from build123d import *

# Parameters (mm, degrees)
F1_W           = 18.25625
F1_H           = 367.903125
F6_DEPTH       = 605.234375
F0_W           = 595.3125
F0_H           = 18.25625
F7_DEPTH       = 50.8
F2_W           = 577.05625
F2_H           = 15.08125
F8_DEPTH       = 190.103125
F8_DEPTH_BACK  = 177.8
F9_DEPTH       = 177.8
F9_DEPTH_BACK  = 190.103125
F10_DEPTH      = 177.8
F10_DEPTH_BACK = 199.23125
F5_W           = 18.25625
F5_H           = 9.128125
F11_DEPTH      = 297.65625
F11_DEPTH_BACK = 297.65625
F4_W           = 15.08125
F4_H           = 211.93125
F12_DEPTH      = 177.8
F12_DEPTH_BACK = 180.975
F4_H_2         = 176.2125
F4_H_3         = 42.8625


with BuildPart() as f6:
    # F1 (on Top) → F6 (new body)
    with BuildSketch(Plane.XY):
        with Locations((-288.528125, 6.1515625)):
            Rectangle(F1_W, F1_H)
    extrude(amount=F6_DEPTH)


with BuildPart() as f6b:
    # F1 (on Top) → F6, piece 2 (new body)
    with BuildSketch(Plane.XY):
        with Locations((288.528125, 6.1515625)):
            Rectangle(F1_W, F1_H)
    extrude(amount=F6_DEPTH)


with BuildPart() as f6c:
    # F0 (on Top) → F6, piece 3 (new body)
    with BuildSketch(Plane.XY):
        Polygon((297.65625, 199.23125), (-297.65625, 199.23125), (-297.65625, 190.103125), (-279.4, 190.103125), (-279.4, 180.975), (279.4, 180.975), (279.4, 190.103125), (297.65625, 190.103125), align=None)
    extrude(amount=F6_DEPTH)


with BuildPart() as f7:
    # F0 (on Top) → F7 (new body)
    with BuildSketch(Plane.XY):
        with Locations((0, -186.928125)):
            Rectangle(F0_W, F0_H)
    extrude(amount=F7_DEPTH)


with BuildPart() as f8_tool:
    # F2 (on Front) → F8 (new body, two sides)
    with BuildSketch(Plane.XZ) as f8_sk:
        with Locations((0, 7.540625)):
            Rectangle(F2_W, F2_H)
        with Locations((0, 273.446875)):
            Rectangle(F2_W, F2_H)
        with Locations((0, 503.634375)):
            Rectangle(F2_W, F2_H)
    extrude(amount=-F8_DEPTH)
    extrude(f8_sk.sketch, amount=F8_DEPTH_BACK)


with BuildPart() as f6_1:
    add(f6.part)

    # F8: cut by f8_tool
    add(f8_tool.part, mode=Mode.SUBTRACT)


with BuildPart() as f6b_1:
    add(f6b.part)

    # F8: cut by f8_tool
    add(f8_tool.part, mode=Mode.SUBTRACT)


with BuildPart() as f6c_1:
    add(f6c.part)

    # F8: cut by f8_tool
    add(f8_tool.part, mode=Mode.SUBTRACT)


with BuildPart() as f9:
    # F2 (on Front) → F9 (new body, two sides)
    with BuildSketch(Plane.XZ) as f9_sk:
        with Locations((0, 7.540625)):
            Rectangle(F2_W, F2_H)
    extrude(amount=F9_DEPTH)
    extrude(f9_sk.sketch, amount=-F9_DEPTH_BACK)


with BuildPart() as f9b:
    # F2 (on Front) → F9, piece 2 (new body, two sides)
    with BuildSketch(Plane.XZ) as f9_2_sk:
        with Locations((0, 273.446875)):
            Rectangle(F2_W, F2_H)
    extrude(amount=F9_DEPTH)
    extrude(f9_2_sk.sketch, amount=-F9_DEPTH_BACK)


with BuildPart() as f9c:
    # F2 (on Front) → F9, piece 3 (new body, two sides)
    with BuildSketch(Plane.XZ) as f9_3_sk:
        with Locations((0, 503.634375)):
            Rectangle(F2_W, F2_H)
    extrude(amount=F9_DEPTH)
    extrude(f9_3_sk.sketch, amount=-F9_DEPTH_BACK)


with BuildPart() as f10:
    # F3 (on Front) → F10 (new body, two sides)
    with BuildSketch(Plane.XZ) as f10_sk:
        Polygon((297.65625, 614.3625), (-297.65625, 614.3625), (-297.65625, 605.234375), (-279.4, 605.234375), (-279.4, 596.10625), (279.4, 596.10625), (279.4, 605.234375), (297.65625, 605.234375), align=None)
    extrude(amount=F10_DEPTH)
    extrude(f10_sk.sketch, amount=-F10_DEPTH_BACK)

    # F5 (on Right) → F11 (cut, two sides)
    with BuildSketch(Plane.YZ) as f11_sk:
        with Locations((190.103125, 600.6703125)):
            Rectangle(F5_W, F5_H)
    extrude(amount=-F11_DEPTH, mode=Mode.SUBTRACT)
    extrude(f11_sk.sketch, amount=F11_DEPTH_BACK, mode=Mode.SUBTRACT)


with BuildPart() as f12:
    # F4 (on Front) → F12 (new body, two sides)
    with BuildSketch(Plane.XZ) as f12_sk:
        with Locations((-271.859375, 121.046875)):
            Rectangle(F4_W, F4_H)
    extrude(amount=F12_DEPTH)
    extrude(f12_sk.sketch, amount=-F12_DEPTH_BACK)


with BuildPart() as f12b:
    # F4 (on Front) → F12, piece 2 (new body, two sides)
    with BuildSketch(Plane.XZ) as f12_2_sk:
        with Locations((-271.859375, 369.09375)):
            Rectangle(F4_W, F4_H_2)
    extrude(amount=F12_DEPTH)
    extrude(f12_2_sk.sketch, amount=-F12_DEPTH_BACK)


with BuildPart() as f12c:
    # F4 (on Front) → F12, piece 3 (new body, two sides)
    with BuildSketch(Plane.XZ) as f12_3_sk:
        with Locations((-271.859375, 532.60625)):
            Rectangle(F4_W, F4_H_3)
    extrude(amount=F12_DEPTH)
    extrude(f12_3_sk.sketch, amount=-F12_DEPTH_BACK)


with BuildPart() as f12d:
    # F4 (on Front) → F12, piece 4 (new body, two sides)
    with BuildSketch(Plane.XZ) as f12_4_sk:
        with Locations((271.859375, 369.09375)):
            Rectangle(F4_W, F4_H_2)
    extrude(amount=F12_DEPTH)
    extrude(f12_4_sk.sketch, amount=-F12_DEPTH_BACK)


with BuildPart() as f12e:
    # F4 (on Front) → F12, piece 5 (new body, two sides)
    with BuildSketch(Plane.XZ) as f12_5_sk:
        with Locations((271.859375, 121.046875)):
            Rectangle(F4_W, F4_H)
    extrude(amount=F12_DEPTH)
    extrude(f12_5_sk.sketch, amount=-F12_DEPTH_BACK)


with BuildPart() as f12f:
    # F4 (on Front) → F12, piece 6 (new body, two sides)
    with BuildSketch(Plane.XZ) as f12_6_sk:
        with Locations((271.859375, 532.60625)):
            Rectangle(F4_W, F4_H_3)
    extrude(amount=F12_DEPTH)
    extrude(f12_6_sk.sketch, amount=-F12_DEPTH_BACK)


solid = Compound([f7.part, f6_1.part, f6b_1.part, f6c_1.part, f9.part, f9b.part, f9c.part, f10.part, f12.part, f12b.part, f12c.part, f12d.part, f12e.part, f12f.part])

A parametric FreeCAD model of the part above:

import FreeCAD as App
import Part
import Sketcher

V = App.Vector
Q = App.Units.Quantity


def add_polygon(sketch, points):
    """Adds a closed chain of lines whose ends are joined by coincident constraints."""
    first, n = sketch.GeometryCount, len(points)
    for a, b in zip(points, points[1:] + points[:1]):
        sketch.addGeometry(Part.LineSegment(App.Vector(*a, 0), App.Vector(*b, 0)), False)
    for i in range(n):
        sketch.addConstraint(Sketcher.Constraint("Coincident", first + i, 2, first + (i + 1) % n, 1))

doc = App.newDocument("Part")
params = doc.addObject("Spreadsheet::Sheet", "Params")
for row, (alias, value) in enumerate([
    ("sketch1_width", "0.71875 in"),
    ("sketch1_height", "14.484375 in"),
    ("pad1_length", "23.828125 in"),
    ("sketch2_width", "0.71875 in"),
    ("sketch2_height", "14.484375 in"),
    ("pad2_length", "23.828125 in"),
    ("sketch3_width", "22 in"),
    ("sketch3_width2", "23.4375 in"),
    ("sketch3_height", "0.359375 in"),
    ("pad3_length", "23.828125 in"),
    ("sketch4_width", "23.4375 in"),
    ("sketch4_height", "0.71875 in"),
    ("pad4_length", "2 in"),
    ("sketch5_width", "22.71875 in"),
    ("sketch5_height", "0.59375 in"),
    ("pad5_length", "7.484375 in"),
    ("pad5_length2", "7 in"),
    ("sketch6_width", "22.71875 in"),
    ("sketch6_height", "0.59375 in"),
    ("pad6_length", "7 in"),
    ("pad6_length2", "7.484375 in"),
    ("sketch7_width", "22.71875 in"),
    ("sketch7_height", "0.59375 in"),
    ("pad7_length", "7 in"),
    ("pad7_length2", "7.484375 in"),
    ("sketch8_width", "22.71875 in"),
    ("sketch8_height", "0.59375 in"),
    ("pad8_length", "7 in"),
    ("pad8_length2", "7.484375 in"),
    ("sketch9_width", "22 in"),
    ("sketch9_width2", "23.4375 in"),
    ("sketch9_height", "0.359375 in"),
    ("pad9_length", "7 in"),
    ("pad9_length2", "7.84375 in"),
    ("sketch10_width", "0.71875 in"),
    ("sketch10_height", "0.359375 in"),
    ("sketch11_width", "0.59375 in"),
    ("sketch11_height", "8.34375 in"),
    ("pad10_length", "7 in"),
    ("pad10_length2", "7.125 in"),
    ("sketch12_width", "0.59375 in"),
    ("sketch12_height", "6.9375 in"),
    ("pad11_length", "7 in"),
    ("pad11_length2", "7.125 in"),
    ("sketch13_width", "0.59375 in"),
    ("sketch13_height", "1.6875 in"),
    ("pad12_length", "7 in"),
    ("pad12_length2", "7.125 in"),
    ("sketch14_width", "0.59375 in"),
    ("sketch14_height", "6.9375 in"),
    ("pad13_length", "7 in"),
    ("pad13_length2", "7.125 in"),
    ("sketch15_width", "0.59375 in"),
    ("sketch15_height", "8.34375 in"),
    ("pad14_length", "7 in"),
    ("pad14_length2", "7.125 in"),
    ("sketch16_width", "0.59375 in"),
    ("sketch16_height", "1.6875 in"),
    ("pad15_length", "7 in"),
    ("pad15_length2", "7.125 in"),
], start=1):
    params.set(f"A{row}", alias)
    params.set(f"B{row}", "=" + value)
    params.setAlias(f"B{row}", alias)

body = doc.addObject("PartDesign::Body", "Body")

# Sketch on XY plane
sketch1 = body.newObject("Sketcher::SketchObject", "Sketch")
sketch1.AttachmentSupport = (doc.getObject("XY_Plane"), [""])
sketch1.MapMode = "FlatFace"
add_polygon(sketch1, [(-298, 190), (-298, -178), (-279, -178), (-279, 190)])  # lines 0-3
sketch1.addConstraint(Sketcher.Constraint("Vertical", 0))
sketch1.addConstraint(Sketcher.Constraint("Horizontal", 1))
sketch1.addConstraint(Sketcher.Constraint("Vertical", 2))
sketch1.addConstraint(Sketcher.Constraint("Horizontal", 3))
sketch1.addConstraint(Sketcher.Constraint("DistanceY", 0, 2, -1, 1, Q("7 in")))
sketch1.addConstraint(Sketcher.Constraint("DistanceX", 1, 2, -1, 1, Q("11 in")))
sketch1.addConstraint(Sketcher.Constraint("DistanceX", 1, 1, 1, 2, Q("0.71875 in")))
sketch1.addConstraint(Sketcher.Constraint("DistanceY", 0, 2, 0, 1, Q("14.484375 in")))
sketch1.setExpression("Constraints[10]", "Params.sketch1_width")
sketch1.setExpression("Constraints[11]", "Params.sketch1_height")
pad1 = body.newObject("PartDesign::Pad", "Pad")
pad1.Profile = sketch1
pad1.setExpression("Length", "Params.pad1_length")
body2 = doc.addObject("PartDesign::Body", "Body001")

# Sketch on XY plane
sketch2 = body2.newObject("Sketcher::SketchObject", "Sketch001")
sketch2.AttachmentSupport = (doc.getObject("XY_Plane001"), [""])
sketch2.MapMode = "FlatFace"
add_polygon(sketch2, [(279, 190), (279, -178), (298, -178), (298, 190)])  # lines 0-3
sketch2.addConstraint(Sketcher.Constraint("Vertical", 0))
sketch2.addConstraint(Sketcher.Constraint("Horizontal", 1))
sketch2.addConstraint(Sketcher.Constraint("Vertical", 2))
sketch2.addConstraint(Sketcher.Constraint("Horizontal", 3))
sketch2.addConstraint(Sketcher.Constraint("DistanceX", -1, 1, 0, 2, Q("11 in")))
sketch2.addConstraint(Sketcher.Constraint("DistanceY", 0, 2, -1, 1, Q("7 in")))
sketch2.addConstraint(Sketcher.Constraint("DistanceX", 1, 1, 1, 2, Q("0.71875 in")))
sketch2.addConstraint(Sketcher.Constraint("DistanceY", 0, 2, 0, 1, Q("14.484375 in")))
sketch2.setExpression("Constraints[10]", "Params.sketch2_width")
sketch2.setExpression("Constraints[11]", "Params.sketch2_height")
pad2 = body2.newObject("PartDesign::Pad", "Pad001")
pad2.Profile = sketch2
pad2.setExpression("Length", "Params.pad2_length")
body3 = doc.addObject("PartDesign::Body", "Body002")

# Sketch on XY plane
sketch3 = body3.newObject("Sketcher::SketchObject", "Sketch002")
sketch3.AttachmentSupport = (doc.getObject("XY_Plane002"), [""])
sketch3.MapMode = "FlatFace"
add_polygon(sketch3, [(298, 199), (-298, 199), (-298, 190), (-279, 190), (-279, 181), (279, 181), (279, 190), (298, 190)])  # lines 0-7
sketch3.addConstraint(Sketcher.Constraint("Horizontal", 0))
sketch3.addConstraint(Sketcher.Constraint("Vertical", 1))
sketch3.addConstraint(Sketcher.Constraint("Horizontal", 2))
sketch3.addConstraint(Sketcher.Constraint("Vertical", 3))
sketch3.addConstraint(Sketcher.Constraint("Horizontal", 4))
sketch3.addConstraint(Sketcher.Constraint("Vertical", 5))
sketch3.addConstraint(Sketcher.Constraint("Horizontal", 6))
sketch3.addConstraint(Sketcher.Constraint("Vertical", 7))
sketch3.addConstraint(Sketcher.Constraint("Symmetric", 2, 2, 5, 2, -2))
sketch3.addConstraint(Sketcher.Constraint("Equal", 2, 6))
sketch3.addConstraint(Sketcher.Constraint("Equal", 1, 3))
sketch3.addConstraint(Sketcher.Constraint("DistanceX", 4, 1, 4, 2, Q("22 in")))
sketch3.addConstraint(Sketcher.Constraint("DistanceX", 0, 2, 0, 1, Q("23.4375 in")))
sketch3.addConstraint(Sketcher.Constraint("DistanceY", 1, 2, 1, 1, Q("0.359375 in")))
sketch3.addConstraint(Sketcher.Constraint("DistanceY", -1, 1, 0, 2, Q("7.84375 in")))
sketch3.setExpression("Constraints[19]", "Params.sketch3_width")
sketch3.setExpression("Constraints[20]", "Params.sketch3_width2")
sketch3.setExpression("Constraints[21]", "Params.sketch3_height")
pad3 = body3.newObject("PartDesign::Pad", "Pad002")
pad3.Profile = sketch3
pad3.setExpression("Length", "Params.pad3_length")
body4 = doc.addObject("PartDesign::Body", "Body003")

# Sketch on XY plane
sketch4 = body4.newObject("Sketcher::SketchObject", "Sketch003")
sketch4.AttachmentSupport = (doc.getObject("XY_Plane003"), [""])
sketch4.MapMode = "FlatFace"
add_polygon(sketch4, [(-298, -178), (-298, -196), (298, -196), (298, -178)])  # lines 0-3
sketch4.addConstraint(Sketcher.Constraint("Vertical", 0))
sketch4.addConstraint(Sketcher.Constraint("Horizontal", 1))
sketch4.addConstraint(Sketcher.Constraint("Vertical", 2))
sketch4.addConstraint(Sketcher.Constraint("Horizontal", 3))
sketch4.addConstraint(Sketcher.Constraint("DistanceY", 2, 2, -1, 1, Q("7 in")))
sketch4.addConstraint(Sketcher.Constraint("DistanceX", 1, 1, 1, 2, Q("23.4375 in")))
sketch4.addConstraint(Sketcher.Constraint("DistanceY", 0, 2, 0, 1, Q("0.71875 in")))
sketch4.addConstraint(Sketcher.Constraint("DistanceX", 0, 2, -1, 1, Q("11.71875 in")))
sketch4.setExpression("Constraints[9]", "Params.sketch4_width")
sketch4.setExpression("Constraints[10]", "Params.sketch4_height")
pad4 = body4.newObject("PartDesign::Pad", "Pad003")
pad4.Profile = sketch4
pad4.setExpression("Length", "Params.pad4_length")
body5 = doc.addObject("PartDesign::Body", "Body004")
body5.AllowCompound = True

# Sketch on XZ plane
sketch5 = body5.newObject("Sketcher::SketchObject", "Sketch004")
sketch5.AttachmentSupport = (doc.getObject("XZ_Plane004"), [""])
sketch5.MapMode = "FlatFace"
add_polygon(sketch5, [(-289, 15), (-289, 0), (289, 0), (289, 15)])  # lines 0-3
add_polygon(sketch5, [(-289, 281), (-289, 266), (289, 266), (289, 281)])  # lines 4-7
add_polygon(sketch5, [(-289, 511), (-289, 496), (289, 496), (289, 511)])  # lines 8-11
sketch5.addConstraint(Sketcher.Constraint("Vertical", 0))
sketch5.addConstraint(Sketcher.Constraint("Horizontal", 1))
sketch5.addConstraint(Sketcher.Constraint("Vertical", 2))
sketch5.addConstraint(Sketcher.Constraint("Horizontal", 3))
sketch5.addConstraint(Sketcher.Constraint("Vertical", 4))
sketch5.addConstraint(Sketcher.Constraint("Horizontal", 5))
sketch5.addConstraint(Sketcher.Constraint("Vertical", 6))
sketch5.addConstraint(Sketcher.Constraint("Horizontal", 7))
sketch5.addConstraint(Sketcher.Constraint("Vertical", 8))
sketch5.addConstraint(Sketcher.Constraint("Horizontal", 9))
sketch5.addConstraint(Sketcher.Constraint("Vertical", 10))
sketch5.addConstraint(Sketcher.Constraint("Horizontal", 11))
sketch5.addConstraint(Sketcher.Constraint("Symmetric", 0, 2, 1, 2, -1, 1))
sketch5.addConstraint(Sketcher.Constraint("Vertical", 3, 2, 4, 2))
sketch5.addConstraint(Sketcher.Constraint("Vertical", 2, 2, 5, 2))
sketch5.addConstraint(Sketcher.Constraint("Vertical", 7, 2, 8, 2))
sketch5.addConstraint(Sketcher.Constraint("Vertical", 6, 2, 9, 2))
sketch5.addConstraint(Sketcher.Constraint("Equal", 2, 4))
sketch5.addConstraint(Sketcher.Constraint("Equal", 6, 8))
sketch5.addConstraint(Sketcher.Constraint("DistanceX", 1, 1, 1, 2, Q("22.71875 in")))
sketch5.addConstraint(Sketcher.Constraint("DistanceY", 0, 2, 0, 1, Q("0.59375 in")))
sketch5.addConstraint(Sketcher.Constraint("DistanceY", -1, 1, 4, 2, Q("10.46875 in")))
sketch5.addConstraint(Sketcher.Constraint("DistanceY", -1, 1, 8, 2, Q("19.53125 in")))
sketch5.setExpression("Constraints[31]", "Params.sketch5_width")
sketch5.setExpression("Constraints[32]", "Params.sketch5_height")
pad5 = body5.newObject("PartDesign::Pad", "Pad004")
pad5.Profile = sketch5
pad5.Type = "TwoLengths"
pad5.setExpression("Length", "Params.pad5_length")
pad5.setExpression("Length2", "Params.pad5_length2")
pad5.Reversed = True
doc.recompute()

body6 = doc.addObject("PartDesign::Body", "Body005")
body6.BaseFeature = body5
boolean = body.newObject("PartDesign::Boolean", "Boolean")
boolean.Type = "Cut"
boolean.addObjects([body6])
doc.recompute()

body7 = doc.addObject("PartDesign::Body", "Body006")
body7.BaseFeature = body5
boolean2 = body2.newObject("PartDesign::Boolean", "Boolean001")
boolean2.Type = "Cut"
boolean2.addObjects([body7])
doc.recompute()

boolean3 = body3.newObject("PartDesign::Boolean", "Boolean002")
boolean3.Type = "Cut"
boolean3.addObjects([body5])
body8 = doc.addObject("PartDesign::Body", "Body007")

# Sketch on XZ plane
sketch6 = body8.newObject("Sketcher::SketchObject", "Sketch005")
sketch6.AttachmentSupport = (doc.getObject("XZ_Plane007"), [""])
sketch6.MapMode = "FlatFace"
add_polygon(sketch6, [(-289, 15), (-289, 0), (289, 0), (289, 15)])  # lines 0-3
sketch6.addConstraint(Sketcher.Constraint("Vertical", 0))
sketch6.addConstraint(Sketcher.Constraint("Horizontal", 1))
sketch6.addConstraint(Sketcher.Constraint("Vertical", 2))
sketch6.addConstraint(Sketcher.Constraint("Horizontal", 3))
sketch6.addConstraint(Sketcher.Constraint("Symmetric", 0, 2, 1, 2, -1, 1))
sketch6.addConstraint(Sketcher.Constraint("DistanceX", 1, 1, 1, 2, Q("22.71875 in")))
sketch6.addConstraint(Sketcher.Constraint("DistanceY", 0, 2, 0, 1, Q("0.59375 in")))
sketch6.setExpression("Constraints[9]", "Params.sketch6_width")
sketch6.setExpression("Constraints[10]", "Params.sketch6_height")
pad6 = body8.newObject("PartDesign::Pad", "Pad005")
pad6.Profile = sketch6
pad6.Type = "TwoLengths"
pad6.setExpression("Length", "Params.pad6_length")
pad6.setExpression("Length2", "Params.pad6_length2")
body9 = doc.addObject("PartDesign::Body", "Body008")

# Sketch on XZ plane
sketch7 = body9.newObject("Sketcher::SketchObject", "Sketch006")
sketch7.AttachmentSupport = (doc.getObject("XZ_Plane008"), [""])
sketch7.MapMode = "FlatFace"
add_polygon(sketch7, [(-289, 281), (-289, 266), (289, 266), (289, 281)])  # lines 0-3
sketch7.addConstraint(Sketcher.Constraint("Vertical", 0))
sketch7.addConstraint(Sketcher.Constraint("Horizontal", 1))
sketch7.addConstraint(Sketcher.Constraint("Vertical", 2))
sketch7.addConstraint(Sketcher.Constraint("Horizontal", 3))
sketch7.addConstraint(Sketcher.Constraint("DistanceX", 1, 1, 1, 2, Q("22.71875 in")))
sketch7.addConstraint(Sketcher.Constraint("DistanceY", 0, 2, 0, 1, Q("0.59375 in")))
sketch7.addConstraint(Sketcher.Constraint("DistanceX", 0, 2, -1, 1, Q("11.359375 in")))
sketch7.addConstraint(Sketcher.Constraint("DistanceY", -1, 1, 0, 2, Q("10.46875 in")))
sketch7.setExpression("Constraints[8]", "Params.sketch7_width")
sketch7.setExpression("Constraints[9]", "Params.sketch7_height")
pad7 = body9.newObject("PartDesign::Pad", "Pad006")
pad7.Profile = sketch7
pad7.Type = "TwoLengths"
pad7.setExpression("Length", "Params.pad7_length")
pad7.setExpression("Length2", "Params.pad7_length2")
body10 = doc.addObject("PartDesign::Body", "Body009")

# Sketch on XZ plane
sketch8 = body10.newObject("Sketcher::SketchObject", "Sketch007")
sketch8.AttachmentSupport = (doc.getObject("XZ_Plane009"), [""])
sketch8.MapMode = "FlatFace"
add_polygon(sketch8, [(-289, 511), (-289, 496), (289, 496), (289, 511)])  # lines 0-3
sketch8.addConstraint(Sketcher.Constraint("Vertical", 0))
sketch8.addConstraint(Sketcher.Constraint("Horizontal", 1))
sketch8.addConstraint(Sketcher.Constraint("Vertical", 2))
sketch8.addConstraint(Sketcher.Constraint("Horizontal", 3))
sketch8.addConstraint(Sketcher.Constraint("DistanceX", 1, 1, 1, 2, Q("22.71875 in")))
sketch8.addConstraint(Sketcher.Constraint("DistanceY", 0, 2, 0, 1, Q("0.59375 in")))
sketch8.addConstraint(Sketcher.Constraint("DistanceX", 0, 2, -1, 1, Q("11.359375 in")))
sketch8.addConstraint(Sketcher.Constraint("DistanceY", -1, 1, 0, 2, Q("19.53125 in")))
sketch8.setExpression("Constraints[8]", "Params.sketch8_width")
sketch8.setExpression("Constraints[9]", "Params.sketch8_height")
pad8 = body10.newObject("PartDesign::Pad", "Pad007")
pad8.Profile = sketch8
pad8.Type = "TwoLengths"
pad8.setExpression("Length", "Params.pad8_length")
pad8.setExpression("Length2", "Params.pad8_length2")
body11 = doc.addObject("PartDesign::Body", "Body010")

# Sketch on XZ plane
sketch9 = body11.newObject("Sketcher::SketchObject", "Sketch008")
sketch9.AttachmentSupport = (doc.getObject("XZ_Plane010"), [""])
sketch9.MapMode = "FlatFace"
add_polygon(sketch9, [(298, 614), (-298, 614), (-298, 605), (-279, 605), (-279, 596), (279, 596), (279, 605), (298, 605)])  # lines 0-7
sketch9.addConstraint(Sketcher.Constraint("Horizontal", 0))
sketch9.addConstraint(Sketcher.Constraint("Vertical", 1))
sketch9.addConstraint(Sketcher.Constraint("Horizontal", 2))
sketch9.addConstraint(Sketcher.Constraint("Vertical", 3))
sketch9.addConstraint(Sketcher.Constraint("Horizontal", 4))
sketch9.addConstraint(Sketcher.Constraint("Vertical", 5))
sketch9.addConstraint(Sketcher.Constraint("Horizontal", 6))
sketch9.addConstraint(Sketcher.Constraint("Vertical", 7))
sketch9.addConstraint(Sketcher.Constraint("Symmetric", 2, 2, 5, 2, -2))
sketch9.addConstraint(Sketcher.Constraint("Equal", 2, 6))
sketch9.addConstraint(Sketcher.Constraint("Equal", 1, 3))
sketch9.addConstraint(Sketcher.Constraint("DistanceX", 4, 1, 4, 2, Q("22 in")))
sketch9.addConstraint(Sketcher.Constraint("DistanceX", 0, 2, 0, 1, Q("23.4375 in")))
sketch9.addConstraint(Sketcher.Constraint("DistanceY", 1, 2, 1, 1, Q("0.359375 in")))
sketch9.addConstraint(Sketcher.Constraint("DistanceY", -1, 1, 0, 2, Q("24.1875 in")))
sketch9.setExpression("Constraints[19]", "Params.sketch9_width")
sketch9.setExpression("Constraints[20]", "Params.sketch9_width2")
sketch9.setExpression("Constraints[21]", "Params.sketch9_height")
pad9 = body11.newObject("PartDesign::Pad", "Pad008")
pad9.Profile = sketch9
pad9.Type = "TwoLengths"
pad9.setExpression("Length", "Params.pad9_length")
pad9.setExpression("Length2", "Params.pad9_length2")

# Sketch on YZ plane
sketch10 = body11.newObject("Sketcher::SketchObject", "Sketch009")
sketch10.AttachmentSupport = (doc.getObject("YZ_Plane010"), [""])
sketch10.MapMode = "FlatFace"
add_polygon(sketch10, [(181, 605), (181, 596), (199, 596), (199, 605)])  # lines 0-3
sketch10.addConstraint(Sketcher.Constraint("Vertical", 0))
sketch10.addConstraint(Sketcher.Constraint("Horizontal", 1))
sketch10.addConstraint(Sketcher.Constraint("Vertical", 2))
sketch10.addConstraint(Sketcher.Constraint("Horizontal", 3))
sketch10.addConstraint(Sketcher.Constraint("DistanceX", 1, 1, 1, 2, Q("0.71875 in")))
sketch10.addConstraint(Sketcher.Constraint("DistanceY", 0, 2, 0, 1, Q("0.359375 in")))
sketch10.addConstraint(Sketcher.Constraint("DistanceX", -1, 1, 0, 2, Q("7.125 in")))
sketch10.addConstraint(Sketcher.Constraint("DistanceY", -1, 1, 0, 2, Q("23.46875 in")))
sketch10.setExpression("Constraints[8]", "Params.sketch10_width")
sketch10.setExpression("Constraints[9]", "Params.sketch10_height")
pocket1 = body11.newObject("PartDesign::Pocket", "Pocket")
pocket1.Profile = sketch10
pocket1.Type = "ThroughAll"
pocket1.Midplane = True
body12 = doc.addObject("PartDesign::Body", "Body011")

# Sketch on XZ plane
sketch11 = body12.newObject("Sketcher::SketchObject", "Sketch010")
sketch11.AttachmentSupport = (doc.getObject("XZ_Plane011"), [""])
sketch11.MapMode = "FlatFace"
add_polygon(sketch11, [(-279, 227), (-279, 15), (-264, 15), (-264, 227)])  # lines 0-3
sketch11.addConstraint(Sketcher.Constraint("Vertical", 0))
sketch11.addConstraint(Sketcher.Constraint("Horizontal", 1))
sketch11.addConstraint(Sketcher.Constraint("Vertical", 2))
sketch11.addConstraint(Sketcher.Constraint("Horizontal", 3))
sketch11.addConstraint(Sketcher.Constraint("DistanceX", 0, 2, -1, 1, Q("11 in")))
sketch11.addConstraint(Sketcher.Constraint("DistanceX", 1, 1, 1, 2, Q("0.59375 in")))
sketch11.addConstraint(Sketcher.Constraint("DistanceY", 0, 2, 0, 1, Q("8.34375 in")))
sketch11.addConstraint(Sketcher.Constraint("DistanceY", -1, 1, 0, 2, Q("0.59375 in")))
sketch11.setExpression("Constraints[9]", "Params.sketch11_width")
sketch11.setExpression("Constraints[10]", "Params.sketch11_height")
pad10 = body12.newObject("PartDesign::Pad", "Pad009")
pad10.Profile = sketch11
pad10.Type = "TwoLengths"
pad10.setExpression("Length", "Params.pad10_length")
pad10.setExpression("Length2", "Params.pad10_length2")
body13 = doc.addObject("PartDesign::Body", "Body012")

# Sketch on XZ plane
sketch12 = body13.newObject("Sketcher::SketchObject", "Sketch011")
sketch12.AttachmentSupport = (doc.getObject("XZ_Plane012"), [""])
sketch12.MapMode = "FlatFace"
add_polygon(sketch12, [(-279, 457), (-279, 281), (-264, 281), (-264, 457)])  # lines 0-3
sketch12.addConstraint(Sketcher.Constraint("Vertical", 0))
sketch12.addConstraint(Sketcher.Constraint("Horizontal", 1))
sketch12.addConstraint(Sketcher.Constraint("Vertical", 2))
sketch12.addConstraint(Sketcher.Constraint("Horizontal", 3))
sketch12.addConstraint(Sketcher.Constraint("DistanceX", 0, 2, -1, 1, Q("11 in")))
sketch12.addConstraint(Sketcher.Constraint("DistanceY", -1, 1, 2, 2, Q("18 in")))
sketch12.addConstraint(Sketcher.Constraint("DistanceX", 1, 1, 1, 2, Q("0.59375 in")))
sketch12.addConstraint(Sketcher.Constraint("DistanceY", 0, 2, 0, 1, Q("6.9375 in")))
sketch12.setExpression("Constraints[10]", "Params.sketch12_width")
sketch12.setExpression("Constraints[11]", "Params.sketch12_height")
pad11 = body13.newObject("PartDesign::Pad", "Pad010")
pad11.Profile = sketch12
pad11.Type = "TwoLengths"
pad11.setExpression("Length", "Params.pad11_length")
pad11.setExpression("Length2", "Params.pad11_length2")
body14 = doc.addObject("PartDesign::Body", "Body013")

# Sketch on XZ plane
sketch13 = body14.newObject("Sketcher::SketchObject", "Sketch012")
sketch13.AttachmentSupport = (doc.getObject("XZ_Plane013"), [""])
sketch13.MapMode = "FlatFace"
add_polygon(sketch13, [(-279, 554), (-279, 511), (-264, 511), (-264, 554)])  # lines 0-3
sketch13.addConstraint(Sketcher.Constraint("Vertical", 0))
sketch13.addConstraint(Sketcher.Constraint("Horizontal", 1))
sketch13.addConstraint(Sketcher.Constraint("Vertical", 2))
sketch13.addConstraint(Sketcher.Constraint("Horizontal", 3))
sketch13.addConstraint(Sketcher.Constraint("DistanceX", 0, 2, -1, 1, Q("11 in")))
sketch13.addConstraint(Sketcher.Constraint("DistanceX", 1, 1, 1, 2, Q("0.59375 in")))
sketch13.addConstraint(Sketcher.Constraint("DistanceY", 0, 2, 0, 1, Q("1.6875 in")))
sketch13.addConstraint(Sketcher.Constraint("DistanceY", -1, 1, 0, 2, Q("20.125 in")))
sketch13.setExpression("Constraints[9]", "Params.sketch13_width")
sketch13.setExpression("Constraints[10]", "Params.sketch13_height")
pad12 = body14.newObject("PartDesign::Pad", "Pad011")
pad12.Profile = sketch13
pad12.Type = "TwoLengths"
pad12.setExpression("Length", "Params.pad12_length")
pad12.setExpression("Length2", "Params.pad12_length2")
body15 = doc.addObject("PartDesign::Body", "Body014")

# Sketch on XZ plane
sketch14 = body15.newObject("Sketcher::SketchObject", "Sketch013")
sketch14.AttachmentSupport = (doc.getObject("XZ_Plane014"), [""])
sketch14.MapMode = "FlatFace"
add_polygon(sketch14, [(264, 457), (264, 281), (279, 281), (279, 457)])  # lines 0-3
sketch14.addConstraint(Sketcher.Constraint("Vertical", 0))
sketch14.addConstraint(Sketcher.Constraint("Horizontal", 1))
sketch14.addConstraint(Sketcher.Constraint("Vertical", 2))
sketch14.addConstraint(Sketcher.Constraint("Horizontal", 3))
sketch14.addConstraint(Sketcher.Constraint("DistanceX", -1, 1, 1, 2, Q("11 in")))
sketch14.addConstraint(Sketcher.Constraint("DistanceY", -1, 1, 2, 2, Q("18 in")))
sketch14.addConstraint(Sketcher.Constraint("DistanceX", 1, 1, 1, 2, Q("0.59375 in")))
sketch14.addConstraint(Sketcher.Constraint("DistanceY", 0, 2, 0, 1, Q("6.9375 in")))
sketch14.setExpression("Constraints[10]", "Params.sketch14_width")
sketch14.setExpression("Constraints[11]", "Params.sketch14_height")
pad13 = body15.newObject("PartDesign::Pad", "Pad012")
pad13.Profile = sketch14
pad13.Type = "TwoLengths"
pad13.setExpression("Length", "Params.pad13_length")
pad13.setExpression("Length2", "Params.pad13_length2")
body16 = doc.addObject("PartDesign::Body", "Body015")

# Sketch on XZ plane
sketch15 = body16.newObject("Sketcher::SketchObject", "Sketch014")
sketch15.AttachmentSupport = (doc.getObject("XZ_Plane015"), [""])
sketch15.MapMode = "FlatFace"
add_polygon(sketch15, [(264, 227), (264, 15), (279, 15), (279, 227)])  # lines 0-3
sketch15.addConstraint(Sketcher.Constraint("Vertical", 0))
sketch15.addConstraint(Sketcher.Constraint("Horizontal", 1))
sketch15.addConstraint(Sketcher.Constraint("Vertical", 2))
sketch15.addConstraint(Sketcher.Constraint("Horizontal", 3))
sketch15.addConstraint(Sketcher.Constraint("DistanceX", -1, 1, 1, 2, Q("11 in")))
sketch15.addConstraint(Sketcher.Constraint("DistanceX", 1, 1, 1, 2, Q("0.59375 in")))
sketch15.addConstraint(Sketcher.Constraint("DistanceY", 0, 2, 0, 1, Q("8.34375 in")))
sketch15.addConstraint(Sketcher.Constraint("DistanceY", -1, 1, 0, 2, Q("0.59375 in")))
sketch15.setExpression("Constraints[9]", "Params.sketch15_width")
sketch15.setExpression("Constraints[10]", "Params.sketch15_height")
pad14 = body16.newObject("PartDesign::Pad", "Pad013")
pad14.Profile = sketch15
pad14.Type = "TwoLengths"
pad14.setExpression("Length", "Params.pad14_length")
pad14.setExpression("Length2", "Params.pad14_length2")
body17 = doc.addObject("PartDesign::Body", "Body016")

# Sketch on XZ plane
sketch16 = body17.newObject("Sketcher::SketchObject", "Sketch015")
sketch16.AttachmentSupport = (doc.getObject("XZ_Plane016"), [""])
sketch16.MapMode = "FlatFace"
add_polygon(sketch16, [(264, 554), (264, 511), (279, 511), (279, 554)])  # lines 0-3
sketch16.addConstraint(Sketcher.Constraint("Vertical", 0))
sketch16.addConstraint(Sketcher.Constraint("Horizontal", 1))
sketch16.addConstraint(Sketcher.Constraint("Vertical", 2))
sketch16.addConstraint(Sketcher.Constraint("Horizontal", 3))
sketch16.addConstraint(Sketcher.Constraint("DistanceX", -1, 1, 1, 2, Q("11 in")))
sketch16.addConstraint(Sketcher.Constraint("DistanceX", 1, 1, 1, 2, Q("0.59375 in")))
sketch16.addConstraint(Sketcher.Constraint("DistanceY", 0, 2, 0, 1, Q("1.6875 in")))
sketch16.addConstraint(Sketcher.Constraint("DistanceY", -1, 1, 0, 2, Q("20.125 in")))
sketch16.setExpression("Constraints[9]", "Params.sketch16_width")
sketch16.setExpression("Constraints[10]", "Params.sketch16_height")
pad15 = body17.newObject("PartDesign::Pad", "Pad014")
pad15.Profile = sketch16
pad15.Type = "TwoLengths"
pad15.setExpression("Length", "Params.pad15_length")
pad15.setExpression("Length2", "Params.pad15_length2")

doc.recompute()
